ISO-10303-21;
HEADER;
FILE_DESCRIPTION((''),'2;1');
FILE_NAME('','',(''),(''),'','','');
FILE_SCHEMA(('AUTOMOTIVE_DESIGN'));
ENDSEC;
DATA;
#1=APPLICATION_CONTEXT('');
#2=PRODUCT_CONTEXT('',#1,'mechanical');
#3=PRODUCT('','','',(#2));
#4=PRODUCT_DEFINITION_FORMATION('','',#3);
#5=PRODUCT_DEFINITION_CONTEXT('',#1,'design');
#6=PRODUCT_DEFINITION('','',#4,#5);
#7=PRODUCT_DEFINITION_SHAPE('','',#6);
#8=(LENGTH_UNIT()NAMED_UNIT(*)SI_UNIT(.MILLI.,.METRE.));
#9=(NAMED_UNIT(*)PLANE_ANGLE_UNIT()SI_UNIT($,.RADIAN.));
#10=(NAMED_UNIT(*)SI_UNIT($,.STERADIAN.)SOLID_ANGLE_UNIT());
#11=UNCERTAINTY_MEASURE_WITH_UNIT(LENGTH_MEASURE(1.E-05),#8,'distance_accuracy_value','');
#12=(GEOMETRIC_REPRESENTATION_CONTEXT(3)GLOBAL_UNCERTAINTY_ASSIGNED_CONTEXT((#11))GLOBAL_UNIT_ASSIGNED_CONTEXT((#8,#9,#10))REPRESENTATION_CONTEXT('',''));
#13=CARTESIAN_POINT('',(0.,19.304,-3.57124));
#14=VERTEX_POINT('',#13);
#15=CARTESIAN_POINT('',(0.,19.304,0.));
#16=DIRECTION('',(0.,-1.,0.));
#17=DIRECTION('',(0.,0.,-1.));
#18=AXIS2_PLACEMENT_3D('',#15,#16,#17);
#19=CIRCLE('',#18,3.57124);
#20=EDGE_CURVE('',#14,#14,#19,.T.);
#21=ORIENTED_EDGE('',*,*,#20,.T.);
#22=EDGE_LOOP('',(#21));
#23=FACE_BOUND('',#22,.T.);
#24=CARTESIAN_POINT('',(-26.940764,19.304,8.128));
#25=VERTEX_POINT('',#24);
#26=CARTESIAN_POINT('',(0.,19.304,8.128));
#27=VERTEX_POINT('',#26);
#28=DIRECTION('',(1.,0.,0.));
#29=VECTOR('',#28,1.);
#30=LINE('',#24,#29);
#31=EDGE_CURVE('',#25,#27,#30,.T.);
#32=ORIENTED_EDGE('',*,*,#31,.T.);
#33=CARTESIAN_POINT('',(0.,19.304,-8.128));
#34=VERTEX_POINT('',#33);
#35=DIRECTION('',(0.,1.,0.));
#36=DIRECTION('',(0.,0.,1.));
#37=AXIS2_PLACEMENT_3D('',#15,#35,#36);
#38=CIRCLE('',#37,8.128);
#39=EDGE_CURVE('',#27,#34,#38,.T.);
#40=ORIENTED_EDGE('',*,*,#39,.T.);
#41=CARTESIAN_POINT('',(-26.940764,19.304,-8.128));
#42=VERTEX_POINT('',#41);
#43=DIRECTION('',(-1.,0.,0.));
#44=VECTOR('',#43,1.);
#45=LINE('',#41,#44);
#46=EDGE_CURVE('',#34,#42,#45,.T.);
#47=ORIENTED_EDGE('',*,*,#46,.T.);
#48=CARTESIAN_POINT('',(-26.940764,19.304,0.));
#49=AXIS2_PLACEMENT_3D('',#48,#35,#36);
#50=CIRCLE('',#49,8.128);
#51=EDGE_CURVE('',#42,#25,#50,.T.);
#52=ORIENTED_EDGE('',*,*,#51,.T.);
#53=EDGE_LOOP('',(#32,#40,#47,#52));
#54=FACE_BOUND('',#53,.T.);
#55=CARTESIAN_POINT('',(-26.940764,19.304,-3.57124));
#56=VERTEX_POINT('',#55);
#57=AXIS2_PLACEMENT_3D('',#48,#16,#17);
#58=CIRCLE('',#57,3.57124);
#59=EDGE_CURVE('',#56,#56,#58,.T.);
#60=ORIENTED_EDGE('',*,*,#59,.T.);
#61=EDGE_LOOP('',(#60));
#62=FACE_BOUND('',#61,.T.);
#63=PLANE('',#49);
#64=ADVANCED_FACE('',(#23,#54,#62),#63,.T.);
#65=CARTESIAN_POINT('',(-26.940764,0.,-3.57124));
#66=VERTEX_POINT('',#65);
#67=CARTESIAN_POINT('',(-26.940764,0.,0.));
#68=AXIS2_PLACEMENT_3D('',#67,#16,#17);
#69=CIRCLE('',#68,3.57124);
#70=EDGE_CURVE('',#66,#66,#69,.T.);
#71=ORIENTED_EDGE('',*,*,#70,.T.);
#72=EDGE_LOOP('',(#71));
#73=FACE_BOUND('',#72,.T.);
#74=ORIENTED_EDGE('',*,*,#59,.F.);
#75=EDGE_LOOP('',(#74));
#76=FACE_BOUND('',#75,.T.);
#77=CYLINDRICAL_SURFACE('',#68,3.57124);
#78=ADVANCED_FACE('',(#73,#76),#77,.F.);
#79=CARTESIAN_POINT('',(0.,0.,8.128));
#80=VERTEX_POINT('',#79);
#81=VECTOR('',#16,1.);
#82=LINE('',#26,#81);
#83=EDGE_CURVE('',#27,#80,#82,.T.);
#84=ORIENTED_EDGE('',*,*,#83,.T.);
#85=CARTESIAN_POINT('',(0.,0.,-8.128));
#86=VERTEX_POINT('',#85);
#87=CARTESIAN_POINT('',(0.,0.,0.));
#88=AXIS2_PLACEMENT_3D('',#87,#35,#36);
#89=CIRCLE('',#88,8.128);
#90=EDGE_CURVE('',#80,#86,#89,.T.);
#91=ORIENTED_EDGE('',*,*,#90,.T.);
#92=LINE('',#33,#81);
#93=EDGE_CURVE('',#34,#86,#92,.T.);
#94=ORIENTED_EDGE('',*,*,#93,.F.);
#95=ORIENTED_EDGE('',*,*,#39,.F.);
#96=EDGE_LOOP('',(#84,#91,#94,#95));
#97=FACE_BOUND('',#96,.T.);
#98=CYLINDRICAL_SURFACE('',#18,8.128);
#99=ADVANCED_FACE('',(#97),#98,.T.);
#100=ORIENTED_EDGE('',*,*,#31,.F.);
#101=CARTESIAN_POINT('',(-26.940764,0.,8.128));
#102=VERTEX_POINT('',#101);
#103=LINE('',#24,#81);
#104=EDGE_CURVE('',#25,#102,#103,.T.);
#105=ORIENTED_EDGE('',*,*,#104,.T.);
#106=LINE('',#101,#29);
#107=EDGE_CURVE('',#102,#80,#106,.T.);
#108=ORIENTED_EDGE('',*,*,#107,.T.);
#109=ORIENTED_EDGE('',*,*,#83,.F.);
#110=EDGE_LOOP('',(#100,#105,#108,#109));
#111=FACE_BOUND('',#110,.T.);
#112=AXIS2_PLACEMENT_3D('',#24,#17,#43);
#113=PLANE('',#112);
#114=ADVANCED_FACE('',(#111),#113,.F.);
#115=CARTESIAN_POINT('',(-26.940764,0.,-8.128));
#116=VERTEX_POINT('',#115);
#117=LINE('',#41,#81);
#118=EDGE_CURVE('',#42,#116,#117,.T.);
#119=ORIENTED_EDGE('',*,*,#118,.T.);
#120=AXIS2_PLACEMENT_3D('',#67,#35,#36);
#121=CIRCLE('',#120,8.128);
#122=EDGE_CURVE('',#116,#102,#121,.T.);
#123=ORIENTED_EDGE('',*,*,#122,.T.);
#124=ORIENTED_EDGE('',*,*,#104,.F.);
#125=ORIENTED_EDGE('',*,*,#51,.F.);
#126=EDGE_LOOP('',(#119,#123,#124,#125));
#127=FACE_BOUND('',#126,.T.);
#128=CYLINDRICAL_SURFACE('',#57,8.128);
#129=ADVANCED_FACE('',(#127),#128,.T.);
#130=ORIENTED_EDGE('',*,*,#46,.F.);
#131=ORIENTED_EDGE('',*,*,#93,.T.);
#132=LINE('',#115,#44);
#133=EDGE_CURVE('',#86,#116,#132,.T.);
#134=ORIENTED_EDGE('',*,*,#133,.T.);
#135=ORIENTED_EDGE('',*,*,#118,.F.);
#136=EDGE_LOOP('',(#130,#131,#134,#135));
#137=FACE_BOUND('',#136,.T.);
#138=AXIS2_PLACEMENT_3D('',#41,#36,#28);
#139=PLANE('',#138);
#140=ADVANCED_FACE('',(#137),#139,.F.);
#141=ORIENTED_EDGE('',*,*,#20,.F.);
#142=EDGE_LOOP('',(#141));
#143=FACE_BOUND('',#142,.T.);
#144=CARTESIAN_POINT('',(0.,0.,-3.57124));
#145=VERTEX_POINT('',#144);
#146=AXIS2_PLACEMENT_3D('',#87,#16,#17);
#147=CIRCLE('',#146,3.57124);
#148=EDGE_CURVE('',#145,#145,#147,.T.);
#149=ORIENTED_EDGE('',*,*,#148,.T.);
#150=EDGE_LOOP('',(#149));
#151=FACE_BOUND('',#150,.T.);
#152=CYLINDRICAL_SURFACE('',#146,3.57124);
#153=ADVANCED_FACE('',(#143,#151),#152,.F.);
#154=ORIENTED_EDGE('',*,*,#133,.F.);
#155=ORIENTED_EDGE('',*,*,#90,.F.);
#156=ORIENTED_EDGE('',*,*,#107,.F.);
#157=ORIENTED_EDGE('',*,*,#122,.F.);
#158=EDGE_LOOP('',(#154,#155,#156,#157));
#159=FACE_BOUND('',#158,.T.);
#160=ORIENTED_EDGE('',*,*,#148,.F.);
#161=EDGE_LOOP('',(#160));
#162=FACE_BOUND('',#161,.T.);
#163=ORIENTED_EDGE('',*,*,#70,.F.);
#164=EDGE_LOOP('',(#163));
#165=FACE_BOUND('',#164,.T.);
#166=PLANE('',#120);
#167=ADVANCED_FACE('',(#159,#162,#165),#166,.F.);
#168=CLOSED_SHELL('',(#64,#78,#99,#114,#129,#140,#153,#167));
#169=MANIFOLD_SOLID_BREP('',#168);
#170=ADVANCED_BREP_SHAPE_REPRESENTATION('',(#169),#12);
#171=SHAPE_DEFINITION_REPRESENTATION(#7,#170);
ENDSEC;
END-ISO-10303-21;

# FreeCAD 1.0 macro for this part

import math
import FreeCAD as App
import Part
import Sketcher
from FreeCAD import Vector
Q = App.Units.Quantity

doc = App.newDocument("Part")
body = doc.addObject("PartDesign::Body", "Body")

sketch1 = body.newObject("Sketcher::SketchObject", "Sketch")
sketch1.AttachmentSupport = (doc.getObject("XZ_Plane"), [""])
sketch1.MapMode = "FlatFace"
sketch1.addGeometry([
    Part.LineSegment(Vector(0, -8, 0), Vector(-27, -8, 0)),
    Part.ArcOfCircle(Part.Circle(Vector(-27, 0, 0), Vector(0, 0, 1), 8), math.radians(90), math.radians(270)),
    Part.LineSegment(Vector(-27, 8, 0), Vector(0, 8, 0)),
    Part.ArcOfCircle(Part.Circle(Vector(0, 0, 0), Vector(0, 0, 1), 8), math.radians(-90), math.radians(90)),
], False)
sketch1.addConstraint([
    Sketcher.Constraint("Tangent", 0, 2, 1, 2),
    Sketcher.Constraint("Tangent", 1, 1, 2, 1),
    Sketcher.Constraint("Tangent", 2, 2, 3, 2),
    Sketcher.Constraint("Tangent", 3, 1, 0, 1),
    Sketcher.Constraint("Horizontal", 0),
    Sketcher.Constraint("Horizontal", 2),
    Sketcher.Constraint("Coincident", 3, 3, -1, 1),
    Sketcher.Constraint("Radius", 1, Q("0.32 in")),
    Sketcher.Constraint("DistanceX", 0, 2, 0, 1, Q("26.940764 mm")),
])
pad1 = body.newObject("PartDesign::Pad", "Pad")
pad1.Profile = sketch1
pad1.Length = Q("0.76 in")
pad1.Reversed = True

sketch2 = body.newObject("Sketcher::SketchObject", "Sketch001")
sketch2.AttachmentSupport = (doc.getObject("XZ_Plane"), [""])
sketch2.MapMode = "FlatFace"
sketch2.addGeometry([
    Part.Circle(Vector(0, 0, 0), Vector(0, 0, 1), 3.6),
    Part.Circle(Vector(-26.9, 0, 0), Vector(0, 0, 1), 3.6),
], False)
sketch2.addConstraint([
    Sketcher.Constraint("Coincident", 0, 3, -1, 1),
    Sketcher.Constraint("Equal", 0, 1),
    Sketcher.Constraint("PointOnObject", 1, 3, -1),
    Sketcher.Constraint("Diameter", 0, Q("0.2812 in")),
    Sketcher.Constraint("DistanceX", 1, 3, -1, 1, Q("26.940764 mm")),
])
doc.recompute()
hole = body.newObject("PartDesign::Hole", "Hole")
hole.Profile = sketch2
hole.ThreadType = "None"
hole.Diameter = Q("0.2812 in")
hole.DepthType = "ThroughAll"

doc.recompute()
